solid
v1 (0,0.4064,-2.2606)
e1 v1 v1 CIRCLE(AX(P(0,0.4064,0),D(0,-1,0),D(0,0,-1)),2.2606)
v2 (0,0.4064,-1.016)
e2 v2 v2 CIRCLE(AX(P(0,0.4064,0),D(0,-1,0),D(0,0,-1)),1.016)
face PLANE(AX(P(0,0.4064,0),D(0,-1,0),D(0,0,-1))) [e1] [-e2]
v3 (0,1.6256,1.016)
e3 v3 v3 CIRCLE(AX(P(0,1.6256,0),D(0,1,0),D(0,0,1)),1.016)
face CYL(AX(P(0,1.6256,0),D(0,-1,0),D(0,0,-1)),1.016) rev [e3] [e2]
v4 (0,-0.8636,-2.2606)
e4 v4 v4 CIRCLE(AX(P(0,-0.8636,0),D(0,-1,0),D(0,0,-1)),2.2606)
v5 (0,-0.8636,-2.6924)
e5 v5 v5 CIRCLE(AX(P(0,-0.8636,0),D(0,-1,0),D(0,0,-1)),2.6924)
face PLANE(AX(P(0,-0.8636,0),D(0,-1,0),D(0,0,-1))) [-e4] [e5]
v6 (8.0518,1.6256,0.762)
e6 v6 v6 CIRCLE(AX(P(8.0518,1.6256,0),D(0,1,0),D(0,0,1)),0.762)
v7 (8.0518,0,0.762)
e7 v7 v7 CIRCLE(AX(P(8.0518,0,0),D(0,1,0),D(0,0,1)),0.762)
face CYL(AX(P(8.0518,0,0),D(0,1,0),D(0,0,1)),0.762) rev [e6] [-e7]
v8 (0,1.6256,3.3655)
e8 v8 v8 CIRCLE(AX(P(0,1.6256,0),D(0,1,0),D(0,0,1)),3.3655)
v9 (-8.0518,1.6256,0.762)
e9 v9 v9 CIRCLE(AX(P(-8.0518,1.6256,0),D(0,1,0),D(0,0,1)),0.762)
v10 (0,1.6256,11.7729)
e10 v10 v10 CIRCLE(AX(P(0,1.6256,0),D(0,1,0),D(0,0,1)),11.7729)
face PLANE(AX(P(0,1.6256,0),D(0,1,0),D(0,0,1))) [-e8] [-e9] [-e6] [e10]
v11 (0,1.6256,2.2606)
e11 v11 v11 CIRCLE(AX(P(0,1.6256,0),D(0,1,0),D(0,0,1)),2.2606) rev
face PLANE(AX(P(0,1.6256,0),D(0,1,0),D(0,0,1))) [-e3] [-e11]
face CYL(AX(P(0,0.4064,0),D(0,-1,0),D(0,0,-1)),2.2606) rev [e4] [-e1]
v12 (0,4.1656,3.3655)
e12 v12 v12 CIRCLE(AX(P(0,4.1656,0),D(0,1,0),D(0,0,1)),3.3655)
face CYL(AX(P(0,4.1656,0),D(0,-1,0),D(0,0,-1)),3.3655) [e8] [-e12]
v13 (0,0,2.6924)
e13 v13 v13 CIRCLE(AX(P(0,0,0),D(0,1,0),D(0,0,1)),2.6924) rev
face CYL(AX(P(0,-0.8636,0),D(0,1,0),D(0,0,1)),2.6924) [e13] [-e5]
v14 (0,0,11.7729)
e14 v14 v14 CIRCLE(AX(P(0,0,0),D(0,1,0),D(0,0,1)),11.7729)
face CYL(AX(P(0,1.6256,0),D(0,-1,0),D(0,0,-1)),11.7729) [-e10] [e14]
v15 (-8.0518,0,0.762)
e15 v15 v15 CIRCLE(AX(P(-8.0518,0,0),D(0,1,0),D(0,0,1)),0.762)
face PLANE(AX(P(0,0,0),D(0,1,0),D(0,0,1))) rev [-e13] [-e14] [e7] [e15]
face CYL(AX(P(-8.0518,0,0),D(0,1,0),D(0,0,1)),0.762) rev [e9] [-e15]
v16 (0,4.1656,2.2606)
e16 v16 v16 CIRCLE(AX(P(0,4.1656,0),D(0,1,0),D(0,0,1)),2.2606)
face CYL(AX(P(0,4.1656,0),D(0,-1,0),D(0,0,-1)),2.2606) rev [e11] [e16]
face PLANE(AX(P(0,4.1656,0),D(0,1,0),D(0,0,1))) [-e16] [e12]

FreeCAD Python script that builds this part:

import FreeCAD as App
import Part
import Sketcher
Q = App.Units.Quantity

doc = App.newDocument("Part")
body = doc.addObject("PartDesign::Body", "Body")

sketch1 = body.newObject("Sketcher::SketchObject", "Sketch")
sketch1.AttachmentSupport = (doc.getObject("XZ_Plane"), [""])
sketch1.MapMode = "FlatFace"
sketch1.addGeometry([
    Part.Circle(App.Vector(0, 0, 0), App.Vector(0, 0, 1), 11.8),
    Part.Circle(App.Vector(0, 0, 0), App.Vector(0, 0, 1), 1),
], False)
sketch1.addConstraint([
    Sketcher.Constraint("Coincident", 0, 3, -1, 1),
    Sketcher.Constraint("Coincident", 1, 3, -1, 1),
    Sketcher.Constraint("Diameter", 1, Q("0.08 in")),
    Sketcher.Constraint("Diameter", 0, Q("0.927 in")),
])
pad1 = body.newObject("PartDesign::Pad", "Pad")
pad1.Profile = sketch1
pad1.Length = Q("0.064 in")
pad1.Reversed = True

sketch2 = body.newObject("Sketcher::SketchObject", "Sketch001")
sketch2.AttachmentSupport = (doc.getObject("XZ_Plane"), [""])
sketch2.MapMode = "FlatFace"
sketch2.AttachmentOffset = App.Placement(App.Vector(0, 0, -0.064 * 25.4), App.Rotation())
sketch2.addGeometry([
    Part.Circle(App.Vector(8.1, 0, 0), App.Vector(0, 0, 1), 0.8),
    Part.Circle(App.Vector(-8.1, 0, 0), App.Vector(0, 0, 1), 0.8),
], False)
sketch2.addConstraint([
    Sketcher.Constraint("Equal", 0, 1),
    Sketcher.Constraint("Symmetric", 0, 3, 1, 3, -1, 1),
    Sketcher.Constraint("PointOnObject", 0, 3, -1),
    Sketcher.Constraint("Diameter", 0, Q("0.06 in")),
    Sketcher.Constraint("DistanceX", -1, 1, 0, 3, Q("0.317 in")),
])
pocket1 = body.newObject("PartDesign::Pocket", "Pocket")
pocket1.Profile = sketch2
pocket1.Type = "ThroughAll"
pocket1.Reversed = True

sketch3 = body.newObject("Sketcher::SketchObject", "Sketch002")
sketch3.AttachmentSupport = (doc.getObject("XZ_Plane"), [""])
sketch3.MapMode = "FlatFace"
sketch3.AttachmentOffset = App.Placement(App.Vector(0, 0, -0.064 * 25.4), App.Rotation())
sketch3.addGeometry([
    Part.Circle(App.Vector(0, 0, 0), App.Vector(0, 0, 1), 3.4),
    Part.Circle(App.Vector(0, 0, 0), App.Vector(0, 0, 1), 2.3),
], False)
sketch3.addConstraint([
    Sketcher.Constraint("Coincident", 0, 3, -1, 1),
    Sketcher.Constraint("Coincident", 1, 3, -1, 1),
    Sketcher.Constraint("Diameter", 0, Q("0.265 in")),
    Sketcher.Constraint("Diameter", 1, Q("0.178 in")),
])
pad2 = body.newObject("PartDesign::Pad", "Pad001")
pad2.Profile = sketch3
pad2.Length = Q("0.1 in")
pad2.Reversed = True

sketch4 = body.newObject("Sketcher::SketchObject", "Sketch003")
sketch4.AttachmentSupport = (doc.getObject("XZ_Plane"), [""])
sketch4.MapMode = "FlatFace"
sketch4.addGeometry(Part.Circle(App.Vector(0, 0, 0), App.Vector(0, 0, 1), 2.7), False)
sketch4.addConstraint([
    Sketcher.Constraint("Coincident", 0, 3, -1, 1),
    Sketcher.Constraint("Diameter", 0, Q("0.212 in")),
])
pad3 = body.newObject("PartDesign::Pad", "Pad002")
pad3.Profile = sketch4
pad3.Length = Q("0.034 in")

sketch5 = body.newObject("Sketcher::SketchObject", "Sketch004")
sketch5.AttachmentSupport = (doc.getObject("XZ_Plane"), [""])
sketch5.MapMode = "FlatFace"
sketch5.AttachmentOffset = App.Placement(App.Vector(0, 0, 0.034 * 25.4), App.Rotation())
sketch5.addGeometry(Part.Circle(App.Vector(0, 0, 0), App.Vector(0, 0, 1), 2.3), False)
sketch5.addConstraint([
    Sketcher.Constraint("Coincident", 0, 3, -1, 1),
    Sketcher.Constraint("Diameter", 0, Q("0.178 in")),
])
pocket2 = body.newObject("PartDesign::Pocket", "Pocket001")
pocket2.Profile = sketch5
pocket2.Length = Q("0.05 in")

doc.recompute()
